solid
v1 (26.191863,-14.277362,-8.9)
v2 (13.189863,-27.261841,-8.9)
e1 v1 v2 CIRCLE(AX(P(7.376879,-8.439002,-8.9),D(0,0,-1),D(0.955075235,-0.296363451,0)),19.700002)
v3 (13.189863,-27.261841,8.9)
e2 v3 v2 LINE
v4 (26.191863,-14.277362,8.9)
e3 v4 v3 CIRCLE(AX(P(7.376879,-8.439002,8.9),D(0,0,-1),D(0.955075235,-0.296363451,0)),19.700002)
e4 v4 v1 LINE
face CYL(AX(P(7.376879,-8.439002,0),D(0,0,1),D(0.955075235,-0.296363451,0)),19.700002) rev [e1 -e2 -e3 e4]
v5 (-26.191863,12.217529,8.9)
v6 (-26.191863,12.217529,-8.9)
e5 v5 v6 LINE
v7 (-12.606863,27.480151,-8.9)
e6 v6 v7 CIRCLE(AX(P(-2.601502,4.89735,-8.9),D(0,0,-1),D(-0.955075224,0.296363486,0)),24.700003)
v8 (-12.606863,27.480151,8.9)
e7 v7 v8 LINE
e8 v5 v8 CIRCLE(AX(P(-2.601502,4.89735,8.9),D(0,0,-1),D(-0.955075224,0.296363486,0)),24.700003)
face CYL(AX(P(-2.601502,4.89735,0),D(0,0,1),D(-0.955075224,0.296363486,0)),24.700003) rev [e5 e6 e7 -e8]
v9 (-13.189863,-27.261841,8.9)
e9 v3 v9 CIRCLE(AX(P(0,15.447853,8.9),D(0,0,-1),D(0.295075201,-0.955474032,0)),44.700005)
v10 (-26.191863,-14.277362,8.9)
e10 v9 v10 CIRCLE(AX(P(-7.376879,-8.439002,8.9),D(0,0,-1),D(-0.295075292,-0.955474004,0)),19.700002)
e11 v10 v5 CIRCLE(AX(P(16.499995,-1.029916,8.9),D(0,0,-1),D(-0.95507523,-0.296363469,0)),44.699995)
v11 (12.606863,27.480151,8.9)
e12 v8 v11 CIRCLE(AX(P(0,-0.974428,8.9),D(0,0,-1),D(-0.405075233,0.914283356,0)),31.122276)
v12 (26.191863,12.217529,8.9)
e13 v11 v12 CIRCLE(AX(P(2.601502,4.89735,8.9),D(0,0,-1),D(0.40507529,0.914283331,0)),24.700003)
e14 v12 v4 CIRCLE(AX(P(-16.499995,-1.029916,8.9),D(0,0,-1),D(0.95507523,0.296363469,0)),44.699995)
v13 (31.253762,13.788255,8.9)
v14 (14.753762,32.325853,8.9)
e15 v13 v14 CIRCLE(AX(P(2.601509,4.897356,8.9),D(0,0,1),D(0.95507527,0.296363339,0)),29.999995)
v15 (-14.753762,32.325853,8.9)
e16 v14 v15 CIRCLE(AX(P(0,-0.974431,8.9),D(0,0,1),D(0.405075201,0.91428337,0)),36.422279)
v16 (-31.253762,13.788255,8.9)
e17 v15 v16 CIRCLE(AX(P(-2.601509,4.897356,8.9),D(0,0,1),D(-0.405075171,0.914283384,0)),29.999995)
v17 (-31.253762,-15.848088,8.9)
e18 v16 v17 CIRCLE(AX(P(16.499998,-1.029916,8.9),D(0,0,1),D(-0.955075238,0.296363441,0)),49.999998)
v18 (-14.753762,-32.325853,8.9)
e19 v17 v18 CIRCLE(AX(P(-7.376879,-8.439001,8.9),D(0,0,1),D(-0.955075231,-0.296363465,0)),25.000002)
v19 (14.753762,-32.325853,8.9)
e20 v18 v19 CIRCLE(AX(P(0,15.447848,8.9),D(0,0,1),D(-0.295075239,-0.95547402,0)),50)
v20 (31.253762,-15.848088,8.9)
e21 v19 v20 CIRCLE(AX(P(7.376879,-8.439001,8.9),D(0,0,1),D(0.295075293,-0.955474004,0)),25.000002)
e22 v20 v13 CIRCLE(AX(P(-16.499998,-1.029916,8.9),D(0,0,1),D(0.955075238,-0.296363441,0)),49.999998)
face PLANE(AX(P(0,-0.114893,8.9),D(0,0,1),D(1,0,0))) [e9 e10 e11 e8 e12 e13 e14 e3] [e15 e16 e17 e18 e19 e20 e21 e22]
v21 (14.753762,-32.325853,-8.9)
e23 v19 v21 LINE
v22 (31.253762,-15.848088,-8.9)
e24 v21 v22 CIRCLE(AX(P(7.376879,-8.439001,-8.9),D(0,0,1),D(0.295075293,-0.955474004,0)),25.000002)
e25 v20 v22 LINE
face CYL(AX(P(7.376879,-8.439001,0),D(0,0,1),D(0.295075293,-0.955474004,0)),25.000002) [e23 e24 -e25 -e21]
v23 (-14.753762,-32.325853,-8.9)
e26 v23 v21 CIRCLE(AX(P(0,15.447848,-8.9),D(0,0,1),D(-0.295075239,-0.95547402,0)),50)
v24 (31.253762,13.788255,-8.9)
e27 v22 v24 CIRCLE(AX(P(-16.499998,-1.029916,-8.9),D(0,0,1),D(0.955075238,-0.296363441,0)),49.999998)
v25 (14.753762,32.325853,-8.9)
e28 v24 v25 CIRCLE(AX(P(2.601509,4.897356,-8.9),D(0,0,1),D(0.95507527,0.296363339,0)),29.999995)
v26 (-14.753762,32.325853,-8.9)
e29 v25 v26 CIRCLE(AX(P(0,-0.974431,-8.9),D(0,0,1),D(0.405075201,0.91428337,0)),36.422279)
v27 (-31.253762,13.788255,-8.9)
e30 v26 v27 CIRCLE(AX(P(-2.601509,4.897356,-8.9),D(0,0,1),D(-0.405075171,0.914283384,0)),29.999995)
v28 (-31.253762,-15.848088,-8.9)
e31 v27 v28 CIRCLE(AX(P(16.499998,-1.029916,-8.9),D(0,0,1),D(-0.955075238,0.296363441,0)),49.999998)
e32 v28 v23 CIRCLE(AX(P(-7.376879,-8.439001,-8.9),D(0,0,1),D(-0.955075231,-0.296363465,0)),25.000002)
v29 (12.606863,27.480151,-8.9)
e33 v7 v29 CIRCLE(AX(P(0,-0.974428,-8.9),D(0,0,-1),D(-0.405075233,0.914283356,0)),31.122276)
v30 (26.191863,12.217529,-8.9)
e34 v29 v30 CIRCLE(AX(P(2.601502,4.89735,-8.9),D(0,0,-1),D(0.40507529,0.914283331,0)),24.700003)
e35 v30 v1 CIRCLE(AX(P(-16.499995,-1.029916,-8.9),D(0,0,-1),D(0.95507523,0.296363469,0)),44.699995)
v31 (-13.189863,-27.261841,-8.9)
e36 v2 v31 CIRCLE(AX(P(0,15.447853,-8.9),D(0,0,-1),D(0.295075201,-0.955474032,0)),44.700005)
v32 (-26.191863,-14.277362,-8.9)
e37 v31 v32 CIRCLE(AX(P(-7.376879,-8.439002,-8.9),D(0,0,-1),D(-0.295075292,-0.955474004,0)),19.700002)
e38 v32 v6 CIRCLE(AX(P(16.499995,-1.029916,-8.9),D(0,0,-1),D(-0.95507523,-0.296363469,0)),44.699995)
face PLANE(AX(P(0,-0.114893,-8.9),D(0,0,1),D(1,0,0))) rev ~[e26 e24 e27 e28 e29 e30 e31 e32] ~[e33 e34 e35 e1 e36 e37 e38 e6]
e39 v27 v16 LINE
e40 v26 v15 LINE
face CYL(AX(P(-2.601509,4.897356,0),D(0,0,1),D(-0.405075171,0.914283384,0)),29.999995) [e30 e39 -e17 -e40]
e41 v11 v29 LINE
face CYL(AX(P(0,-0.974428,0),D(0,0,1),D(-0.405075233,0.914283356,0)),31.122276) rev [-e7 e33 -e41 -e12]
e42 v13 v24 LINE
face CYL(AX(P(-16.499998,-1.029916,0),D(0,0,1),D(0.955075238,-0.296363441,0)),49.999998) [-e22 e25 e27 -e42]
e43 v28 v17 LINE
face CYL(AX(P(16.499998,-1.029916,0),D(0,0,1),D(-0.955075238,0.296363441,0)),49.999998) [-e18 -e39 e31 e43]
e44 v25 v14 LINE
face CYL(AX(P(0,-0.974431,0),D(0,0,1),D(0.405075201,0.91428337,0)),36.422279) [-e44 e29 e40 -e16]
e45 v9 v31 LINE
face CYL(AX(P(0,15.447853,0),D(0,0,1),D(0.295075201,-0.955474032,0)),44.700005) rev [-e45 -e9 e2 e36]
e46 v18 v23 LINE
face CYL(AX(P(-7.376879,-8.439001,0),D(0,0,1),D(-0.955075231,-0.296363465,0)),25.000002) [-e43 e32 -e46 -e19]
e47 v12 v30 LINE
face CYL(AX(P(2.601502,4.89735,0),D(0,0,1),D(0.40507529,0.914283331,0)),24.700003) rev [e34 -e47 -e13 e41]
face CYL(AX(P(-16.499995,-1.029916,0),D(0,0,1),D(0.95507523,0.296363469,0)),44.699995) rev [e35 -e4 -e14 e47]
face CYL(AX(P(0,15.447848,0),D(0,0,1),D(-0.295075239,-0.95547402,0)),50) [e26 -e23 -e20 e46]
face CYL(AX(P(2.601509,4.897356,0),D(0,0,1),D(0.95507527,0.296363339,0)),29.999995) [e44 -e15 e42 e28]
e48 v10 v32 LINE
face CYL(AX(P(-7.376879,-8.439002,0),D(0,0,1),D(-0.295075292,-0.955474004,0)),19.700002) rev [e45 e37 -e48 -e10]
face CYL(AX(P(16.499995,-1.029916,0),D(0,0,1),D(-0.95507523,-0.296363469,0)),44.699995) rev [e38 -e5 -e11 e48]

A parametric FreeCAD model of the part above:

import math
import FreeCAD as App
import Part
import Sketcher
from FreeCAD import Vector

doc = App.newDocument("Part")
params = doc.addObject("Spreadsheet::Sheet", "Params")
for row, (alias, value) in enumerate([
    ("sketch1_radius", "49.999998 mm"),
    ("sketch1_radius2", "19.700002 mm"),
    ("pad1_length", "17.8 mm"),
], start=1):
    params.set(f"A{row}", alias)
    params.set(f"B{row}", "=" + value)
    params.setAlias(f"B{row}", alias)

body = doc.addObject("PartDesign::Body", "Body")

sketch1 = doc.addObject("Sketcher::SketchObject", "Sketch")
body.addObject(sketch1)
sketch1.AttachmentSupport = (doc.XY_Plane, [""])
sketch1.MapMode = "FlatFace"
sketch1.addGeometry(Part.ArcOfCircle(Part.Circle(Vector(3, 5, 0), Vector(0, 0, 1), 30), math.radians(17), math.radians(66)), False)
sketch1.addGeometry(Part.ArcOfCircle(Part.Circle(Vector(0, -1, 0), Vector(0, 0, 1), 36), math.radians(66), math.radians(114)), False)
sketch1.addGeometry(Part.ArcOfCircle(Part.Circle(Vector(-3, 5, 0), Vector(0, 0, 1), 30), math.radians(114), math.radians(163)), False)
sketch1.addGeometry(Part.ArcOfCircle(Part.Circle(Vector(16, -1, 0), Vector(0, 0, 1), 50), math.radians(163), math.radians(197)), False)
sketch1.addGeometry(Part.ArcOfCircle(Part.Circle(Vector(-7, -8, 0), Vector(0, 0, 1), 25), math.radians(-163), math.radians(-107)), False)
sketch1.addGeometry(Part.ArcOfCircle(Part.Circle(Vector(0, 15, 0), Vector(0, 0, 1), 50), math.radians(-107), math.radians(-73)), False)
sketch1.addGeometry(Part.ArcOfCircle(Part.Circle(Vector(7, -8, 0), Vector(0, 0, 1), 25), math.radians(-73), math.radians(-17)), False)
sketch1.addGeometry(Part.ArcOfCircle(Part.Circle(Vector(-16, -1, 0), Vector(0, 0, 1), 50), math.radians(-17), math.radians(17)), False)
sketch1.addGeometry(Part.ArcOfCircle(Part.Circle(Vector(-3, 5, 0), Vector(0, 0, 1), 25), math.radians(114), math.radians(163)), False)
sketch1.addGeometry(Part.ArcOfCircle(Part.Circle(Vector(0, -1, 0), Vector(0, 0, 1), 31), math.radians(66), math.radians(114)), False)
sketch1.addGeometry(Part.ArcOfCircle(Part.Circle(Vector(3, 5, 0), Vector(0, 0, 1), 25), math.radians(17), math.radians(66)), False)
sketch1.addGeometry(Part.ArcOfCircle(Part.Circle(Vector(-16, -1, 0), Vector(0, 0, 1), 45), math.radians(-17), math.radians(17)), False)
sketch1.addGeometry(Part.ArcOfCircle(Part.Circle(Vector(7, -8, 0), Vector(0, 0, 1), 20), math.radians(-73), math.radians(-17)), False)
sketch1.addGeometry(Part.ArcOfCircle(Part.Circle(Vector(0, 15, 0), Vector(0, 0, 1), 45), math.radians(-107), math.radians(-73)), False)
sketch1.addGeometry(Part.ArcOfCircle(Part.Circle(Vector(-7, -8, 0), Vector(0, 0, 1), 20), math.radians(-163), math.radians(-107)), False)
sketch1.addGeometry(Part.ArcOfCircle(Part.Circle(Vector(16, -1, 0), Vector(0, 0, 1), 45), math.radians(163), math.radians(197)), False)
sketch1.addConstraint(Sketcher.Constraint("Tangent", 0, 2, 1, 1))
sketch1.addConstraint(Sketcher.Constraint("Tangent", 1, 2, 2, 1))
sketch1.addConstraint(Sketcher.Constraint("Tangent", 2, 2, 3, 1))
sketch1.addConstraint(Sketcher.Constraint("Tangent", 3, 2, 4, 1))
sketch1.addConstraint(Sketcher.Constraint("Tangent", 4, 2, 5, 1))
sketch1.addConstraint(Sketcher.Constraint("Tangent", 5, 2, 6, 1))
sketch1.addConstraint(Sketcher.Constraint("Tangent", 6, 2, 7, 1))
sketch1.addConstraint(Sketcher.Constraint("Tangent", 7, 2, 0, 1))
sketch1.addConstraint(Sketcher.Constraint("Tangent", 8, 1, 9, 2))
sketch1.addConstraint(Sketcher.Constraint("Tangent", 9, 1, 10, 2))
sketch1.addConstraint(Sketcher.Constraint("Tangent", 10, 1, 11, 2))
sketch1.addConstraint(Sketcher.Constraint("Tangent", 11, 1, 12, 2))
sketch1.addConstraint(Sketcher.Constraint("Tangent", 12, 1, 13, 2))
sketch1.addConstraint(Sketcher.Constraint("Tangent", 13, 1, 14, 2))
sketch1.addConstraint(Sketcher.Constraint("Tangent", 14, 1, 15, 2))
sketch1.addConstraint(Sketcher.Constraint("Tangent", 15, 1, 8, 2))
sketch1.addConstraint(Sketcher.Constraint("Coincident", 8, 3, 2, 3))
sketch1.addConstraint(Sketcher.Constraint("Coincident", 9, 3, 1, 3))
sketch1.addConstraint(Sketcher.Constraint("Coincident", 10, 3, 0, 3))
sketch1.addConstraint(Sketcher.Constraint("Coincident", 11, 3, 7, 3))
sketch1.addConstraint(Sketcher.Constraint("Coincident", 12, 3, 6, 3))
sketch1.addConstraint(Sketcher.Constraint("Coincident", 13, 3, 5, 3))
sketch1.addConstraint(Sketcher.Constraint("Coincident", 14, 3, 4, 3))
sketch1.addConstraint(Sketcher.Constraint("Equal", 0, 2))
sketch1.addConstraint(Sketcher.Constraint("Equal", 3, 5))
sketch1.addConstraint(Sketcher.Constraint("Equal", 4, 6))
sketch1.addConstraint(Sketcher.Constraint("Equal", 5, 7))
sketch1.addConstraint(Sketcher.Constraint("Equal", 11, 15))
sketch1.addConstraint(Sketcher.Constraint("Symmetric", 0, 2, 4, 2, -1, 1))
sketch1.addConstraint(Sketcher.Constraint("Symmetric", 1, 2, 5, 2, -1, 1))
sketch1.addConstraint(Sketcher.Constraint("Symmetric", 0, 3, 2, 3, -2))
sketch1.addConstraint(Sketcher.Constraint("Vertical", 2, 2, 3, 2))
sketch1.addConstraint(Sketcher.Constraint("Radius", 3, 49.999998))
sketch1.addConstraint(Sketcher.Constraint("Radius", 12, 19.700002))
sketch1.addConstraint(Sketcher.Constraint("DistanceX", -1, 1, 3, 3, 16.499998))
sketch1.addConstraint(Sketcher.Constraint("DistanceX", 2, 2, 1, 2, 16.5))
sketch1.addConstraint(Sketcher.Constraint("Radius", 1, 36.422279))
sketch1.addConstraint(Sketcher.Constraint("DistanceY", 4, 3, -1, 1, 8.439001))
sketch1.setExpression("Constraints[32]", "Params.sketch1_radius")
sketch1.setExpression("Constraints[33]", "Params.sketch1_radius2")
pad1 = doc.addObject("PartDesign::Pad", "Pad")
body.addObject(pad1)
pad1.Profile = sketch1
pad1.setExpression("Length", "Params.pad1_length")
pad1.Midplane = True

doc.recompute()
